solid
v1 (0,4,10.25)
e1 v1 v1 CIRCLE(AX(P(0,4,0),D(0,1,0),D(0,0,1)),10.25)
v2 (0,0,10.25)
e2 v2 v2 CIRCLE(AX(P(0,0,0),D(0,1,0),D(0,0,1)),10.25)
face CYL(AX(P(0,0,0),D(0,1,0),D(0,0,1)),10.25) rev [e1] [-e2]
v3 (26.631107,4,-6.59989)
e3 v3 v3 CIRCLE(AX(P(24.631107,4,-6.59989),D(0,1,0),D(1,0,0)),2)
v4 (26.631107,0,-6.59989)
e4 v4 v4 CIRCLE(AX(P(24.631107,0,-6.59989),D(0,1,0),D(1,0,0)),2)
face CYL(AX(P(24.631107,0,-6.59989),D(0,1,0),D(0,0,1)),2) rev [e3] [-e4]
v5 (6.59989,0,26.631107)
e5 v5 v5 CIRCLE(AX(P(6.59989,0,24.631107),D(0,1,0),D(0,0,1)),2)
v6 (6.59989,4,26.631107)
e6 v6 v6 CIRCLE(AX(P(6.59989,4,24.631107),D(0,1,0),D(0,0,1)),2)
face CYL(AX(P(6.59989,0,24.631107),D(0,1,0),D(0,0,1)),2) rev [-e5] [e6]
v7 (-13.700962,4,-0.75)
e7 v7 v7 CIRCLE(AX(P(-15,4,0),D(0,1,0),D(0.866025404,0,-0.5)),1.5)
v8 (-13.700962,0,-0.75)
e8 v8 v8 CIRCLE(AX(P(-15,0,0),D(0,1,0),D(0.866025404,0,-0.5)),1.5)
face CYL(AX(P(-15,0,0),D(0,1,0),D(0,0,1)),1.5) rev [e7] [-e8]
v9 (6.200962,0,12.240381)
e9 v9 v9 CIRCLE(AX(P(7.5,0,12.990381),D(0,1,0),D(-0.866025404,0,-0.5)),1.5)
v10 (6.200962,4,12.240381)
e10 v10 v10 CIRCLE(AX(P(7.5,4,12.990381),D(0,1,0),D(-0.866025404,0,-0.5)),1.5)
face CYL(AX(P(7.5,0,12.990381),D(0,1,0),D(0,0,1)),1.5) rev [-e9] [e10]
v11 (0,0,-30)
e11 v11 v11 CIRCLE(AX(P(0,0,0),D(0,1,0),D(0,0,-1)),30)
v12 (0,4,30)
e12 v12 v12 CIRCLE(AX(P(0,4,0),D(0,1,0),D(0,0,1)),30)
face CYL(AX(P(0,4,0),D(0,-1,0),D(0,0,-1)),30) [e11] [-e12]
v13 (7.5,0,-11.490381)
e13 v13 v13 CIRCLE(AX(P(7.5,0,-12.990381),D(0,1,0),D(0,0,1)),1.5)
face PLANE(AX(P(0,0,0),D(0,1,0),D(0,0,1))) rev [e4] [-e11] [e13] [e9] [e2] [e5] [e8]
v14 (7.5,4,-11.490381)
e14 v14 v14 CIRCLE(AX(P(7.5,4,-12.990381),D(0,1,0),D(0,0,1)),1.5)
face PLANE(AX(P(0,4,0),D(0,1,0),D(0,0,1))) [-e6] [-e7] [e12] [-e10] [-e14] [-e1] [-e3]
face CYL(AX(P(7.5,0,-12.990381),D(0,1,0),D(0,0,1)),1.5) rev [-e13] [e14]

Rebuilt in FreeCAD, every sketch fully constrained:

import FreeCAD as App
import Part
import Sketcher

doc = App.newDocument("Part")
body = doc.addObject("PartDesign::Body", "Body")

# Sketch on XZ plane
sketch1 = body.newObject("Sketcher::SketchObject", "Sketch")
sketch1.AttachmentSupport = (doc.getObject("XZ_Plane"), [""])
sketch1.MapMode = "FlatFace"
sketch1.addGeometry(Part.Circle(App.Vector(0, 0, 0), App.Vector(0, 0, 1), 30), False)
sketch1.addConstraint([
    Sketcher.Constraint("Coincident", 0, 3, -1, 1),
    Sketcher.Constraint("Diameter", 0, 60.0),
])
pad1 = body.newObject("PartDesign::Pad", "Pad")
pad1.Profile = sketch1
pad1.Length = 4
pad1.Reversed = True

# Sketch on XZ plane
sketch2 = body.newObject("Sketcher::SketchObject", "Sketch001")
sketch2.AttachmentSupport = (doc.getObject("XZ_Plane"), [""])
sketch2.MapMode = "FlatFace"
sketch2.AttachmentOffset = App.Placement(App.Vector(0, 0, -4), App.Rotation())
sketch2.addGeometry(Part.Circle(App.Vector(7.5, -13, 0), App.Vector(0, 0, 1), 1.5), False)
sketch2.addConstraint([
    Sketcher.Constraint("Diameter", 0, 3.0),
    Sketcher.Constraint("DistanceX", -1, 1, 0, 3, 7.5),
    Sketcher.Constraint("DistanceY", 0, 3, -1, 1, 12.990381),
])
pocket1 = body.newObject("PartDesign::Pocket", "Pocket")
pocket1.Profile = sketch2
pocket1.Length = 4
pocket1.Reversed = True
doc.recompute()

polarpattern = body.newObject("PartDesign::PolarPattern", "PolarPattern")
polarpattern.Originals = [pocket1]
polarpattern.Axis = (doc.getObject("Y_Axis"), [""])
polarpattern.Angle = 360
polarpattern.Occurrences = 3
body.Tip = polarpattern

# Sketch on XZ plane
sketch3 = body.newObject("Sketcher::SketchObject", "Sketch002")
sketch3.AttachmentSupport = (doc.getObject("XZ_Plane"), [""])
sketch3.MapMode = "FlatFace"
sketch3.AttachmentOffset = App.Placement(App.Vector(0, 0, -4), App.Rotation())
sketch3.addGeometry(Part.Circle(App.Vector(0, 0, 0), App.Vector(0, 0, 1), 10), False)
sketch3.addConstraint([
    Sketcher.Constraint("Coincident", 0, 3, -1, 1),
    Sketcher.Constraint("Diameter", 0, 20.5),
])
pocket2 = body.newObject("PartDesign::Pocket", "Pocket001")
pocket2.Profile = sketch3
pocket2.Length = 4
pocket2.Reversed = True

# Sketch on XZ plane
sketch4 = body.newObject("Sketcher::SketchObject", "Sketch003")
sketch4.AttachmentSupport = (doc.getObject("XZ_Plane"), [""])
sketch4.MapMode = "FlatFace"
sketch4.AttachmentOffset = App.Placement(App.Vector(0, 0, -4), App.Rotation())
sketch4.addGeometry(Part.Circle(App.Vector(6.6, 24.6, 0), App.Vector(0, 0, 1), 2), False)
sketch4.addConstraint([
    Sketcher.Constraint("Diameter", 0, 4.0),
    Sketcher.Constraint("DistanceX", -1, 1, 0, 3, 6.59989),
    Sketcher.Constraint("DistanceY", -1, 1, 0, 3, 24.631107),
])
pocket3 = body.newObject("PartDesign::Pocket", "Pocket002")
pocket3.Profile = sketch4
pocket3.Length = 4
pocket3.Reversed = True
doc.recompute()

polarpattern2 = body.newObject("PartDesign::PolarPattern", "PolarPattern001")
polarpattern2.Originals = [pocket3]
polarpattern2.Axis = (doc.getObject("Y_Axis"), [""])
polarpattern2.Angle = 90
polarpattern2.Occurrences = 2
body.Tip = polarpattern2

doc.recompute()
